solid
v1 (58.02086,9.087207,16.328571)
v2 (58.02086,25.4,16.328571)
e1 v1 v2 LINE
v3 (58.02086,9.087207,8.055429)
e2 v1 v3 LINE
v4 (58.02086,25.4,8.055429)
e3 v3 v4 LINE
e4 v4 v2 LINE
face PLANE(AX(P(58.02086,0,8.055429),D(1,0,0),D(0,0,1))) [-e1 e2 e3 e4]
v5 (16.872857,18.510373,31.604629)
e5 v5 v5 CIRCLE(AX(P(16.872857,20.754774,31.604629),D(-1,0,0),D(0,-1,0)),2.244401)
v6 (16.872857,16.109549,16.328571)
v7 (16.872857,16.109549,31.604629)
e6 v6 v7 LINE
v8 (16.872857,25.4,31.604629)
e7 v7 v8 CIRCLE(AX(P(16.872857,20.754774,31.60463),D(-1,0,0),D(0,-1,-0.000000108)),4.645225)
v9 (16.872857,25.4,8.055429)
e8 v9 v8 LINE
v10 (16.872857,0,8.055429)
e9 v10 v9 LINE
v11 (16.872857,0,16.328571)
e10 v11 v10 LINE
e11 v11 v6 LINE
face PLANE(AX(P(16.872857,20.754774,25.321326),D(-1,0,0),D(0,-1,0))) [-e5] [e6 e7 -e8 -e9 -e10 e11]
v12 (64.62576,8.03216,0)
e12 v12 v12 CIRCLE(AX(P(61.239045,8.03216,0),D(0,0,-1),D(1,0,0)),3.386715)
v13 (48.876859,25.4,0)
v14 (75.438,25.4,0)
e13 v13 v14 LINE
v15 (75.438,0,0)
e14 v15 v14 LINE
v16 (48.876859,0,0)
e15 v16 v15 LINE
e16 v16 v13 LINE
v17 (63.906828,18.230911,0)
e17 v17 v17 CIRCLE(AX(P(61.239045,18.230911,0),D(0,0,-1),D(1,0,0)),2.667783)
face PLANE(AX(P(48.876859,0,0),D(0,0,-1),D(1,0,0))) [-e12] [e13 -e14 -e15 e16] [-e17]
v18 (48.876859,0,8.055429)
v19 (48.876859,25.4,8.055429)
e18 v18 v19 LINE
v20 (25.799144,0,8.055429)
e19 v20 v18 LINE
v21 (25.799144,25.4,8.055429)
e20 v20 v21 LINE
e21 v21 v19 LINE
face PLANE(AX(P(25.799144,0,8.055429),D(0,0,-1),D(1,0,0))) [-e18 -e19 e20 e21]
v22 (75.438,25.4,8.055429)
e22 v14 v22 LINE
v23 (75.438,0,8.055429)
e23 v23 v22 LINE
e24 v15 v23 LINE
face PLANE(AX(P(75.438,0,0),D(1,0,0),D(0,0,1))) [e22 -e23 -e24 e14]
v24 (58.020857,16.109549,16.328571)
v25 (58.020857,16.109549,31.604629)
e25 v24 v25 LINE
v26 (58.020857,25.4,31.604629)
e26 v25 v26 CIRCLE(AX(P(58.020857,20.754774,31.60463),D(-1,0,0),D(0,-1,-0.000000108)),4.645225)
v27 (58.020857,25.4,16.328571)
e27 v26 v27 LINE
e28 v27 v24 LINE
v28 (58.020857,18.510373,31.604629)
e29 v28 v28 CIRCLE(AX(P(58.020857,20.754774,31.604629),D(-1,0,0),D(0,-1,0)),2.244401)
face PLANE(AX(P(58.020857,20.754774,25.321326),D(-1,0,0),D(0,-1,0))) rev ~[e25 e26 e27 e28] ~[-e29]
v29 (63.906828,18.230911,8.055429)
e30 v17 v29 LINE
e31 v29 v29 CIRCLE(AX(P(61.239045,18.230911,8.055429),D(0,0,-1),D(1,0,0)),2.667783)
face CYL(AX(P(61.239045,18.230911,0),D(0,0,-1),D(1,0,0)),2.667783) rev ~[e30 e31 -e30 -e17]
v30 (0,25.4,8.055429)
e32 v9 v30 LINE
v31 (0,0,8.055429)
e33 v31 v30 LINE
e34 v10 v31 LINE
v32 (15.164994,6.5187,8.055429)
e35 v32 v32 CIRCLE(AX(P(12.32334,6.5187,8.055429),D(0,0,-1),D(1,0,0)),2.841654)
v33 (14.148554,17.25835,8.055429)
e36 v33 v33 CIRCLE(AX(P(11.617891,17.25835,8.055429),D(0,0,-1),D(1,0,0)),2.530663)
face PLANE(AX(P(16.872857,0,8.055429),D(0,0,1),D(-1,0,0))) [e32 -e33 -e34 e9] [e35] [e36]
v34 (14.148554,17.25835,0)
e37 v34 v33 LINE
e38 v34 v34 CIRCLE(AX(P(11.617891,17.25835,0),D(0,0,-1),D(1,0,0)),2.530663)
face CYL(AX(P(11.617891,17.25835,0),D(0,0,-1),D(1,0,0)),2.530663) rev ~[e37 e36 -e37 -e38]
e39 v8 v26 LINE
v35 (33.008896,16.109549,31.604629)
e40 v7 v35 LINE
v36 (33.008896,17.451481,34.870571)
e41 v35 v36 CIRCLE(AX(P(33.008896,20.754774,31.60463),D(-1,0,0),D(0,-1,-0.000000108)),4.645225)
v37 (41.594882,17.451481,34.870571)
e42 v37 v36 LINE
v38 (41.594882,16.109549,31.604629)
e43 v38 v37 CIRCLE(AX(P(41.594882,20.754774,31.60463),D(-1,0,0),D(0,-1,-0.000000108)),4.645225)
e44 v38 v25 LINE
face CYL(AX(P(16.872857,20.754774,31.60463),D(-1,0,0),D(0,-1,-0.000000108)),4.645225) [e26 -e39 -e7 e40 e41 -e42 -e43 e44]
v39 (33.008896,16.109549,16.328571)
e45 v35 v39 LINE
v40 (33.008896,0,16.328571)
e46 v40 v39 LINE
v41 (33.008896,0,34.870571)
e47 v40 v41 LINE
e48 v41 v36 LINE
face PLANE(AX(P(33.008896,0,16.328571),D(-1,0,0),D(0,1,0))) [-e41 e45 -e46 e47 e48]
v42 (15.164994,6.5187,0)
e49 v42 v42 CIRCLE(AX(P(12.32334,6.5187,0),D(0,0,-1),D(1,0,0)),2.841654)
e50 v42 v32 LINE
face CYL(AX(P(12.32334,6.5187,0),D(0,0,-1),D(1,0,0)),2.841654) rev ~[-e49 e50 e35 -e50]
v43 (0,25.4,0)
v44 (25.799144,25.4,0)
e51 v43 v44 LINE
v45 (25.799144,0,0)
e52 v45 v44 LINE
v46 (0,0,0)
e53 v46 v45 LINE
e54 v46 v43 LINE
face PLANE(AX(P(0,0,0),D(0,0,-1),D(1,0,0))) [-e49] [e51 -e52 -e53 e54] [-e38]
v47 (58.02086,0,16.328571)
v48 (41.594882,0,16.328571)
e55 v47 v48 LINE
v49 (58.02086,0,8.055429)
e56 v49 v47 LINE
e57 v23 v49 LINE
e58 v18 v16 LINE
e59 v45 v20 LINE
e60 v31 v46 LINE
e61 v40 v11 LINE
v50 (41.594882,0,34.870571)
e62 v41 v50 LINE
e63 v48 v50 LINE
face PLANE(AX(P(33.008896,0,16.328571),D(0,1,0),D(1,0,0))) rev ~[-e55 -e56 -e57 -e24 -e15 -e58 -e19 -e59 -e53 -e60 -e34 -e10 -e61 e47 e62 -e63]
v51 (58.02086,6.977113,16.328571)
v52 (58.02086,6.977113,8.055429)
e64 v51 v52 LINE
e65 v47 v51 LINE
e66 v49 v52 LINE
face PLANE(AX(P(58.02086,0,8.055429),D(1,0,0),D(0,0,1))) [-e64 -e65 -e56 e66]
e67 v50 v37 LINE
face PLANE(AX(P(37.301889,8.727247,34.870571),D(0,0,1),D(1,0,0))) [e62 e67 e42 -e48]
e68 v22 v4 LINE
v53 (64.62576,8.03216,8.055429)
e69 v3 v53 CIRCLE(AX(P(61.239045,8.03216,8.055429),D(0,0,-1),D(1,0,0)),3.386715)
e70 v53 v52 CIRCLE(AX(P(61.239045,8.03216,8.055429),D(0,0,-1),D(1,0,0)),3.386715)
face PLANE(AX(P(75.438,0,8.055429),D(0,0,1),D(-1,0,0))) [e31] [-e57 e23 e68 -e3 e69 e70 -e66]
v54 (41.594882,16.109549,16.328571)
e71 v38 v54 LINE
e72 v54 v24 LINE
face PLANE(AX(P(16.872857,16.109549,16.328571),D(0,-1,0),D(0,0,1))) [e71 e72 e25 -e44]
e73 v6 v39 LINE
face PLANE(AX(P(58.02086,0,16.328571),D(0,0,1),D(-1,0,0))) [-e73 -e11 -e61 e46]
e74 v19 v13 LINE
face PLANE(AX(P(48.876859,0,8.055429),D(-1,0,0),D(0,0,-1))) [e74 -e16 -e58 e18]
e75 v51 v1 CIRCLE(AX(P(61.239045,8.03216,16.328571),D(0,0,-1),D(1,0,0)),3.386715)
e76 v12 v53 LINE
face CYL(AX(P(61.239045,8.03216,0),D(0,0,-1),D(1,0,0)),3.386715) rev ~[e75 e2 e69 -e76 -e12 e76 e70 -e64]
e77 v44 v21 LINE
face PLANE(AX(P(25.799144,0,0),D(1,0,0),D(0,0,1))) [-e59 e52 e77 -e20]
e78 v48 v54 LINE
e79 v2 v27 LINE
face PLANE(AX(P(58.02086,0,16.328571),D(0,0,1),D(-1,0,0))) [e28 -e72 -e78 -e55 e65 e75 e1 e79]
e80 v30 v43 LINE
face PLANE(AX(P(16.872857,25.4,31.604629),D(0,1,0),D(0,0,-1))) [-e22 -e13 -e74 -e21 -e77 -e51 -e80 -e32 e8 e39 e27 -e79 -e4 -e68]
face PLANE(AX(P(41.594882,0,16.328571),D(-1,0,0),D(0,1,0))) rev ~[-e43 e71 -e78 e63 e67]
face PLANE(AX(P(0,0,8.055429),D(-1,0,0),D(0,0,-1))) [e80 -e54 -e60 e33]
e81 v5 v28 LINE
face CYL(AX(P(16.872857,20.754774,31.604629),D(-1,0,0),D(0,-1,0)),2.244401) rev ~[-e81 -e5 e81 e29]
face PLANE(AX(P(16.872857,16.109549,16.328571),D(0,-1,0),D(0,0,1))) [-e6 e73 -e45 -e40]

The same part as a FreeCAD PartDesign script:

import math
import FreeCAD as App
import Part
import Sketcher

V = App.Vector
Q = App.Units.Quantity

doc = App.newDocument("Part")
body = doc.addObject("PartDesign::Body", "Body")

sketch1 = doc.addObject("Sketcher::SketchObject", "Sketch")
body.addObject(sketch1)
sketch1.AttachmentSupport = (doc.XZ_Plane, [""])
sketch1.MapMode = "FlatFace"
sketch1.addGeometry([
    Part.LineSegment(V(0, 8.055429, 0), V(0, 0, 0)),
    Part.LineSegment(V(0, 0, 0), V(25.799144, 0, 0)),
    Part.LineSegment(V(25.799144, 0, 0), V(25.799144, 8.055429, 0)),
    Part.LineSegment(V(25.799144, 8.055429, 0), V(48.876859, 8.055429, 0)),
    Part.LineSegment(V(48.876859, 8.055429, 0), V(48.876859, 0, 0)),
    Part.LineSegment(V(48.876859, 0, 0), V(75.438, 0, 0)),
    Part.LineSegment(V(75.438, 0, 0), V(75.438, 8.055429, 0)),
    Part.LineSegment(V(75.438, 8.055429, 0), V(58.02086, 8.055429, 0)),
    Part.LineSegment(V(58.02086, 8.055429, 0), V(58.02086, 16.328571, 0)),
    Part.LineSegment(V(58.02086, 16.328571, 0), V(16.872857, 16.328571, 0)),
    Part.LineSegment(V(16.872857, 16.328571, 0), V(16.872857, 8.055429, 0)),
    Part.LineSegment(V(16.872857, 8.055429, 0), V(0, 8.055429, 0)),
], False)
sketch1.addConstraint([
    Sketcher.Constraint("Coincident", 0, 2, 1, 1),
    Sketcher.Constraint("Coincident", 1, 2, 2, 1),
    Sketcher.Constraint("Coincident", 2, 2, 3, 1),
    Sketcher.Constraint("Coincident", 3, 2, 4, 1),
    Sketcher.Constraint("Coincident", 4, 2, 5, 1),
    Sketcher.Constraint("Coincident", 5, 2, 6, 1),
    Sketcher.Constraint("Coincident", 6, 2, 7, 1),
    Sketcher.Constraint("Coincident", 7, 2, 8, 1),
    Sketcher.Constraint("Coincident", 8, 2, 9, 1),
    Sketcher.Constraint("Coincident", 9, 2, 10, 1),
    Sketcher.Constraint("Coincident", 10, 2, 11, 1),
    Sketcher.Constraint("Coincident", 11, 2, 0, 1),
    Sketcher.Constraint("Vertical", 0),
    Sketcher.Constraint("Horizontal", 1),
    Sketcher.Constraint("Vertical", 2),
    Sketcher.Constraint("Horizontal", 3),
    Sketcher.Constraint("Vertical", 4),
    Sketcher.Constraint("Horizontal", 5),
    Sketcher.Constraint("Vertical", 6),
    Sketcher.Constraint("Horizontal", 7),
    Sketcher.Constraint("Vertical", 8),
    Sketcher.Constraint("Horizontal", 9),
    Sketcher.Constraint("Vertical", 10),
    Sketcher.Constraint("Horizontal", 11),
    Sketcher.Constraint("Coincident", 0, 2, -1, 1),
    Sketcher.Constraint("PointOnObject", 4, 2, -1),
    Sketcher.Constraint("Horizontal", 3, 2, 6, 2),
    Sketcher.Constraint("Horizontal", 7, 2, 10, 2),
    Sketcher.Constraint("DistanceX", 9, 2, 9, 1, Q("1.6200001 in")),
    Sketcher.Constraint("DistanceX", -1, 1, 5, 2, Q("2.97 in")),
    Sketcher.Constraint("DistanceX", 3, 2, 7, 2, Q("0.36 in")),
    Sketcher.Constraint("DistanceX", 5, 1, 5, 2, Q("26.561141 mm")),
    Sketcher.Constraint("DistanceY", 0, 2, 0, 1, Q("8.055429 mm")),
    Sketcher.Constraint("DistanceX", 1, 1, 1, 2, Q("25.799144 mm")),
    Sketcher.Constraint("DistanceY", 8, 1, 8, 2, Q("8.273142 mm")),
])
pad1 = doc.addObject("PartDesign::Pad", "Pad")
body.addObject(pad1)
pad1.Profile = sketch1
pad1.Length = Q("1 in")
pad1.Reversed = True

sketch2 = doc.addObject("Sketcher::SketchObject", "Sketch001")
body.addObject(sketch2)
sketch2.AttachmentSupport = (doc.XY_Plane, [""])
sketch2.MapMode = "FlatFace"
sketch2.addGeometry([
    Part.Circle(V(12.32334, 6.5187, 0), V(0, 0, 1), 2.841654),
    Part.Circle(V(11.617891, 17.25835, 0), V(0, 0, 1), 2.530663),
    Part.Circle(V(61.239045, 8.03216, 0), V(0, 0, 1), 3.386715),
    Part.Circle(V(61.239045, 18.230911, 0), V(0, 0, 1), 2.667783),
], False)
sketch2.addConstraint([
    Sketcher.Constraint("Vertical", 2, 3, 3, 3),
    Sketcher.Constraint("Diameter", 0, Q("5.683308 mm")),
    Sketcher.Constraint("Diameter", 2, Q("6.77343 mm")),
    Sketcher.Constraint("Diameter", 1, Q("5.061326 mm")),
    Sketcher.Constraint("Diameter", 3, Q("5.335566 mm")),
    Sketcher.Constraint("DistanceY", -1, 1, 0, 3, Q("6.5187 mm")),
    Sketcher.Constraint("DistanceX", -1, 1, 0, 3, Q("12.32334 mm")),
    Sketcher.Constraint("DistanceX", -1, 1, 1, 3, Q("11.617891 mm")),
    Sketcher.Constraint("DistanceY", -1, 1, 1, 3, Q("17.25835 mm")),
    Sketcher.Constraint("DistanceY", -1, 1, 2, 3, Q("8.03216 mm")),
    Sketcher.Constraint("DistanceY", -1, 1, 3, 3, Q("18.230911 mm")),
    Sketcher.Constraint("DistanceX", -1, 1, 2, 3, Q("61.239045 mm")),
])
pocket1 = doc.addObject("PartDesign::Pocket", "Pocket")
body.addObject(pocket1)
pocket1.Profile = sketch2
pocket1.Length = Q("1 in")
pocket1.Reversed = True

sketch3 = doc.addObject("Sketcher::SketchObject", "Sketch002")
body.addObject(sketch3)
sketch3.AttachmentSupport = (doc.YZ_Plane, [""])
sketch3.MapMode = "FlatFace"
sketch3.AttachmentOffset = App.Placement(V(0, 0, 16.872857), App.Rotation())
sketch3.addGeometry([
    Part.LineSegment(V(25.4, 31.604629, 0), V(25.4, 16.328571, 0)),
    Part.LineSegment(V(25.4, 16.328571, 0), V(16.109549, 16.328571, 0)),
    Part.LineSegment(V(16.109549, 16.328571, 0), V(16.109549, 31.604629, 0)),
    Part.ArcOfCircle(Part.Circle(V(20.754774, 31.60463, 0), V(0, 0, 1), 4.645225), math.radians(-0.000006), math.radians(180.000006)),
    Part.Circle(V(20.754774, 31.604629, 0), V(0, 0, 1), 2.244401),
], False)
sketch3.addConstraint([
    Sketcher.Constraint("Coincident", 0, 2, 1, 1),
    Sketcher.Constraint("Coincident", 1, 2, 2, 1),
    Sketcher.Constraint("Tangent", 2, 2, 3, 2),
    Sketcher.Constraint("Tangent", 3, 1, 0, 1),
    Sketcher.Constraint("Vertical", 0),
    Sketcher.Constraint("Horizontal", 1),
    Sketcher.Constraint("Vertical", 2),
    Sketcher.Constraint("Coincident", 4, 3, 3, 3),
    Sketcher.Constraint("DistanceX", -1, 1, 0, 2, Q("1 in")),
    Sketcher.Constraint("Diameter", 4, Q("4.488802 mm")),
    Sketcher.Constraint("Radius", 3, Q("4.645225 mm")),
    Sketcher.Constraint("DistanceY", 0, 2, 0, 1, Q("15.276058 mm")),
    Sketcher.Constraint("DistanceY", -1, 1, 3, 3, Q("31.60463 mm")),
])
pad2 = doc.addObject("PartDesign::Pad", "Pad001")
body.addObject(pad2)
pad2.Profile = sketch3
pad2.Length = Q("1.62 in")

sketch4 = doc.addObject("Sketcher::SketchObject", "Sketch003")
body.addObject(sketch4)
sketch4.AttachmentSupport = (doc.XY_Plane, [""])
sketch4.MapMode = "FlatFace"
sketch4.AttachmentOffset = App.Placement(V(0, 0, 16.328571), App.Rotation())
sketch4.addGeometry([
    Part.LineSegment(V(33.008896, 17.454494, 0), V(33.008896, 0, 0)),
    Part.LineSegment(V(33.008896, 0, 0), V(41.594882, 0, 0)),
    Part.LineSegment(V(41.594882, 0, 0), V(41.594882, 17.454494, 0)),
    Part.LineSegment(V(41.594882, 17.454494, 0), V(33.008896, 17.454494, 0)),
], False)
sketch4.addConstraint([
    Sketcher.Constraint("Coincident", 0, 2, 1, 1),
    Sketcher.Constraint("Coincident", 1, 2, 2, 1),
    Sketcher.Constraint("Coincident", 2, 2, 3, 1),
    Sketcher.Constraint("Coincident", 3, 2, 0, 1),
    Sketcher.Constraint("Vertical", 0),
    Sketcher.Constraint("Horizontal", 1),
    Sketcher.Constraint("Vertical", 2),
    Sketcher.Constraint("Horizontal", 3),
    Sketcher.Constraint("PointOnObject", 0, 2, -1),
    Sketcher.Constraint("DistanceX", 1, 1, 1, 2, Q("8.585986 mm")),
    Sketcher.Constraint("DistanceY", 0, 2, 0, 1, Q("17.454494 mm")),
    Sketcher.Constraint("DistanceX", -1, 1, 1, 2, Q("41.594882 mm")),
])
pad3 = doc.addObject("PartDesign::Pad", "Pad002")
body.addObject(pad3)
pad3.Profile = sketch4
pad3.Length = Q("0.73 in")

doc.recompute()
